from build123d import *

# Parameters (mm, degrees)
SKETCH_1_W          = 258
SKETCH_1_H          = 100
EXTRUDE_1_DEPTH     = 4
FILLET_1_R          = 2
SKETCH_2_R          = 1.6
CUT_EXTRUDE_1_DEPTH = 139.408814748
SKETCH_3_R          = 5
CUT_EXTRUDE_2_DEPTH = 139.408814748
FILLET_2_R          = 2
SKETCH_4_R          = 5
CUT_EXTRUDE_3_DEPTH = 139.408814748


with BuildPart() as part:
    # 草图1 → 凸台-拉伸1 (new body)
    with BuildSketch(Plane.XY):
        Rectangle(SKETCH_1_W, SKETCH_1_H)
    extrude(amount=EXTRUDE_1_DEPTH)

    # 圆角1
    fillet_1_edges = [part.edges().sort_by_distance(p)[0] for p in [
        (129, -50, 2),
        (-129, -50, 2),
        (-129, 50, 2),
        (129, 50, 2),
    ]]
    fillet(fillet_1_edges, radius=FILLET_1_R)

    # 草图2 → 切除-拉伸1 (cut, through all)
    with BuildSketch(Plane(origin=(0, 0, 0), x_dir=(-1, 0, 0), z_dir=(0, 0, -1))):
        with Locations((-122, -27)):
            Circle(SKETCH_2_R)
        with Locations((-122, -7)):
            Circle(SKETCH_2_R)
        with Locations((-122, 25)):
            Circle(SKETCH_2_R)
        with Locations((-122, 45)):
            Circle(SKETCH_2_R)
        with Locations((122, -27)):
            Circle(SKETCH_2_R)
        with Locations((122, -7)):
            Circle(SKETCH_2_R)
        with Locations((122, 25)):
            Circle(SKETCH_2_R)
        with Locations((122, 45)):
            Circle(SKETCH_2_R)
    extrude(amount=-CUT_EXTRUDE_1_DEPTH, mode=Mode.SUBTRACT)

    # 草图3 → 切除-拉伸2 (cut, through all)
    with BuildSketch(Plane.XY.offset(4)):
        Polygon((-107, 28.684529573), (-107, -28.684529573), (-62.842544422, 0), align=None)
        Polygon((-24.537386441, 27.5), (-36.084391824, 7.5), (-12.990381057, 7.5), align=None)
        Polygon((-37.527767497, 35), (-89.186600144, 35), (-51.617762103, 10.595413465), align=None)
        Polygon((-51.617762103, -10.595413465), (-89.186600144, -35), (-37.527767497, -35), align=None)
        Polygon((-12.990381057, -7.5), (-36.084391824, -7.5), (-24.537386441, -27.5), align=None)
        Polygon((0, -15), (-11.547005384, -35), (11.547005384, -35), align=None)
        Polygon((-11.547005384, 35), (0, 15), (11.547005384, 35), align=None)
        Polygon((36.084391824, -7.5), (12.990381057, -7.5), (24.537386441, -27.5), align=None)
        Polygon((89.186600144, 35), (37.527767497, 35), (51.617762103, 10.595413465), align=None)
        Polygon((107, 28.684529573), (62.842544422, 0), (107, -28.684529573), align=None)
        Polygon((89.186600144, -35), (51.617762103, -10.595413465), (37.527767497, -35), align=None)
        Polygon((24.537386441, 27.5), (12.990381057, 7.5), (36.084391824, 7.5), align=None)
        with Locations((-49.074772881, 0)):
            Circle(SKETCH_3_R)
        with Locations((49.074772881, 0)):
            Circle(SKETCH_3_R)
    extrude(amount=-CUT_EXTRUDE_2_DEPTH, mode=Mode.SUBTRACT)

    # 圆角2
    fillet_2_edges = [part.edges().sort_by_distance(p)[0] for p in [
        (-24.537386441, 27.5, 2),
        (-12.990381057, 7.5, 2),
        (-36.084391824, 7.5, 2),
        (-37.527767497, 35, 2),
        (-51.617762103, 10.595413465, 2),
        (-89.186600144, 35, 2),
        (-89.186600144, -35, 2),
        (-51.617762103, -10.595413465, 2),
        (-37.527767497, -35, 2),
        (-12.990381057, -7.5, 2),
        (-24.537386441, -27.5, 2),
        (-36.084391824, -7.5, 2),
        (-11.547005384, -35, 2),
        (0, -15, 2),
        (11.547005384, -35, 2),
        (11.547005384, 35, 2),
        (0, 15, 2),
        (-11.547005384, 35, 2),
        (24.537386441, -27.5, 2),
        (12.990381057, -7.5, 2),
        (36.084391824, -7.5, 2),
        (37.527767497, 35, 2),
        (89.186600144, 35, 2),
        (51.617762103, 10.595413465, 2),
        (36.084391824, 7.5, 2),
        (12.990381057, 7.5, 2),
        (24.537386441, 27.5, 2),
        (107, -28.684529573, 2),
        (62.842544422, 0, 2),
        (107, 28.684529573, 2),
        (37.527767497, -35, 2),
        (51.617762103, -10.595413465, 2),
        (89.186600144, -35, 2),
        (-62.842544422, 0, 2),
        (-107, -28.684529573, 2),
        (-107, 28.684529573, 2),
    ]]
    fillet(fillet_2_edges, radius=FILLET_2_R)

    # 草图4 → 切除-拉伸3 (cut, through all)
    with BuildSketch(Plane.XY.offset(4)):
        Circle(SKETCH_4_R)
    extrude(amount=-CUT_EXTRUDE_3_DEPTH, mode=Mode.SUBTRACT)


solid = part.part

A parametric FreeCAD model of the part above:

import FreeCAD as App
import Part
import Sketcher

V = App.Vector
Q = App.Units.Quantity


def edges_at(feature, points):
    """Names of the edges that pass closest to the given points."""
    edges = feature.Shape.Edges
    near = lambda p: min(range(len(edges)), key=lambda i: edges[i].distToShape(Part.Vertex(*p))[0])
    return sorted({f"Edge{near(p) + 1}" for p in points})

doc = App.newDocument("Part")
body = doc.addObject("PartDesign::Body", "Body")

# Sketch on XY plane
sketch1 = body.newObject("Sketcher::SketchObject", "Sketch")
sketch1.AttachmentSupport = (doc.getObject("XY_Plane"), [""])
sketch1.MapMode = "FlatFace"
sketch1.addGeometry([
    Part.LineSegment(V(-129, 50, 0), V(-129, -50, 0)),
    Part.LineSegment(V(-129, -50, 0), V(129, -50, 0)),
    Part.LineSegment(V(129, -50, 0), V(129, 50, 0)),
    Part.LineSegment(V(129, 50, 0), V(-129, 50, 0)),
], False)
sketch1.addConstraint([
    Sketcher.Constraint("Coincident", 0, 2, 1, 1),
    Sketcher.Constraint("Coincident", 1, 2, 2, 1),
    Sketcher.Constraint("Coincident", 2, 2, 3, 1),
    Sketcher.Constraint("Coincident", 3, 2, 0, 1),
    Sketcher.Constraint("Vertical", 0),
    Sketcher.Constraint("Horizontal", 1),
    Sketcher.Constraint("Vertical", 2),
    Sketcher.Constraint("Horizontal", 3),
    Sketcher.Constraint("Symmetric", 0, 2, 2, 2, -1, 1),
    Sketcher.Constraint("DistanceX", 1, 1, 1, 2, Q("258 mm")),
    Sketcher.Constraint("DistanceY", 0, 2, 0, 1, Q("100 mm")),
])
pad1 = body.newObject("PartDesign::Pad", "Pad")
pad1.Profile = sketch1
pad1.Length = 4
doc.recompute()

fillet = body.newObject("PartDesign::Fillet", "Fillet")
fillet.Base = (pad1, edges_at(pad1, [
    (129, -50, 2),
    (-129, -50, 2),
    (-129, 50, 2),
    (129, 50, 2),
]))
fillet.Radius = 2

# Sketch on XY plane
sketch2 = body.newObject("Sketcher::SketchObject", "Sketch001")
sketch2.AttachmentSupport = (doc.getObject("XY_Plane"), [""])
sketch2.MapMode = "FlatFace"
sketch2.addGeometry([
    Part.Circle(V(122, -27, 0), V(0, 0, 1), 1.6),  # 0
    Part.Circle(V(122, -7, 0), V(0, 0, 1), 1.6),  # 1
    Part.Circle(V(122, 25, 0), V(0, 0, 1), 1.6),  # 2
    Part.Circle(V(122, 45, 0), V(0, 0, 1), 1.6),  # 3
    Part.Circle(V(-122, -27, 0), V(0, 0, 1), 1.6),  # 4
    Part.Circle(V(-122, -7, 0), V(0, 0, 1), 1.6),  # 5
    Part.Circle(V(-122, 25, 0), V(0, 0, 1), 1.6),  # 6
    Part.Circle(V(-122, 45, 0), V(0, 0, 1), 1.6),  # 7
], False)
sketch2.addConstraint([
    Sketcher.Constraint("Equal", 0, 1),
    Sketcher.Constraint("Equal", 1, 2),
    Sketcher.Constraint("Equal", 2, 3),
    Sketcher.Constraint("Equal", 3, 4),
    Sketcher.Constraint("Equal", 4, 5),
    Sketcher.Constraint("Equal", 5, 6),
    Sketcher.Constraint("Equal", 6, 7),
    Sketcher.Constraint("Symmetric", 0, 3, 4, 3, -2),
    Sketcher.Constraint("Symmetric", 1, 3, 5, 3, -2),
    Sketcher.Constraint("Symmetric", 2, 3, 6, 3, -2),
    Sketcher.Constraint("Symmetric", 3, 3, 7, 3, -2),
    Sketcher.Constraint("Vertical", 0, 3, 1, 3),
    Sketcher.Constraint("Vertical", 1, 3, 2, 3),
    Sketcher.Constraint("Vertical", 2, 3, 3, 3),
    Sketcher.Constraint("Diameter", 0, Q("3.2 mm")),
    Sketcher.Constraint("DistanceX", -1, 1, 0, 3, Q("122 mm")),
    Sketcher.Constraint("DistanceY", 0, 3, -1, 1, Q("27 mm")),
    Sketcher.Constraint("DistanceY", 1, 3, -1, 1, Q("7 mm")),
    Sketcher.Constraint("DistanceY", -1, 1, 2, 3, Q("25 mm")),
    Sketcher.Constraint("DistanceY", -1, 1, 3, 3, Q("45 mm")),
])
pocket1 = body.newObject("PartDesign::Pocket", "Pocket")
pocket1.Profile = sketch2
pocket1.Type = "ThroughAll"
pocket1.Reversed = True

# Sketch on XY plane
sketch3 = body.newObject("Sketcher::SketchObject", "Sketch002")
sketch3.AttachmentSupport = (doc.getObject("XY_Plane"), [""])
sketch3.MapMode = "FlatFace"
sketch3.AttachmentOffset = App.Placement(V(0, 0, 4), App.Rotation())
sketch3.addGeometry([
    Part.LineSegment(V(-107, 29, 0), V(-107, -29, 0)),  # 0
    Part.LineSegment(V(-107, -29, 0), V(-63, 0, 0)),  # 1
    Part.LineSegment(V(-63, 0, 0), V(-107, 29, 0)),  # 2
    Part.LineSegment(V(-25, 28, 0), V(-36, 8, 0)),  # 3
    Part.LineSegment(V(-36, 8, 0), V(-13, 8, 0)),  # 4
    Part.LineSegment(V(-13, 8, 0), V(-25, 28, 0)),  # 5
    Part.LineSegment(V(-38, 35, 0), V(-89, 35, 0)),  # 6
    Part.LineSegment(V(-89, 35, 0), V(-52, 11, 0)),  # 7
    Part.LineSegment(V(-52, 11, 0), V(-38, 35, 0)),  # 8
    Part.LineSegment(V(-52, -11, 0), V(-89, -35, 0)),  # 9
    Part.LineSegment(V(-89, -35, 0), V(-38, -35, 0)),  # 10
    Part.LineSegment(V(-38, -35, 0), V(-52, -11, 0)),  # 11
    Part.LineSegment(V(-13, -8, 0), V(-36, -8, 0)),  # 12
    Part.LineSegment(V(-36, -8, 0), V(-25, -28, 0)),  # 13
    Part.LineSegment(V(-25, -28, 0), V(-13, -8, 0)),  # 14
    Part.LineSegment(V(0, -15, 0), V(-12, -35, 0)),  # 15
    Part.LineSegment(V(-12, -35, 0), V(12, -35, 0)),  # 16
    Part.LineSegment(V(12, -35, 0), V(0, -15, 0)),  # 17
    Part.LineSegment(V(-12, 35, 0), V(0, 15, 0)),  # 18
    Part.LineSegment(V(0, 15, 0), V(12, 35, 0)),  # 19
    Part.LineSegment(V(12, 35, 0), V(-12, 35, 0)),  # 20
    Part.LineSegment(V(36, -8, 0), V(13, -8, 0)),  # 21
    Part.LineSegment(V(13, -8, 0), V(25, -28, 0)),  # 22
    Part.LineSegment(V(25, -28, 0), V(36, -8, 0)),  # 23
    Part.LineSegment(V(89, 35, 0), V(38, 35, 0)),  # 24
    Part.LineSegment(V(38, 35, 0), V(52, 11, 0)),  # 25
    Part.LineSegment(V(52, 11, 0), V(89, 35, 0)),  # 26
    Part.LineSegment(V(107, 29, 0), V(63, 0, 0)),  # 27
    Part.LineSegment(V(63, 0, 0), V(107, -29, 0)),  # 28
    Part.LineSegment(V(107, -29, 0), V(107, 29, 0)),  # 29
    Part.LineSegment(V(89, -35, 0), V(52, -11, 0)),  # 30
    Part.LineSegment(V(52, -11, 0), V(38, -35, 0)),  # 31
    Part.LineSegment(V(38, -35, 0), V(89, -35, 0)),  # 32
    Part.LineSegment(V(25, 28, 0), V(13, 8, 0)),  # 33
    Part.LineSegment(V(13, 8, 0), V(36, 8, 0)),  # 34
    Part.LineSegment(V(36, 8, 0), V(25, 28, 0)),  # 35
    Part.Circle(V(-49, 0, 0), V(0, 0, 1), 5),  # 36
    Part.Circle(V(49, 0, 0), V(0, 0, 1), 5),  # 37
], False)
sketch3.addConstraint([
    Sketcher.Constraint("Coincident", 0, 2, 1, 1),
    Sketcher.Constraint("Coincident", 1, 2, 2, 1),
    Sketcher.Constraint("Coincident", 2, 2, 0, 1),
    Sketcher.Constraint("Coincident", 3, 2, 4, 1),
    Sketcher.Constraint("Coincident", 4, 2, 5, 1),
    Sketcher.Constraint("Coincident", 5, 2, 3, 1),
    Sketcher.Constraint("Coincident", 6, 2, 7, 1),
    Sketcher.Constraint("Coincident", 7, 2, 8, 1),
    Sketcher.Constraint("Coincident", 8, 2, 6, 1),
    Sketcher.Constraint("Coincident", 9, 2, 10, 1),
    Sketcher.Constraint("Coincident", 10, 2, 11, 1),
    Sketcher.Constraint("Coincident", 11, 2, 9, 1),
    Sketcher.Constraint("Coincident", 12, 2, 13, 1),
    Sketcher.Constraint("Coincident", 13, 2, 14, 1),
    Sketcher.Constraint("Coincident", 14, 2, 12, 1),
    Sketcher.Constraint("Coincident", 15, 2, 16, 1),
    Sketcher.Constraint("Coincident", 16, 2, 17, 1),
    Sketcher.Constraint("Coincident", 17, 2, 15, 1),
    Sketcher.Constraint("Coincident", 18, 2, 19, 1),
    Sketcher.Constraint("Coincident", 19, 2, 20, 1),
    Sketcher.Constraint("Coincident", 20, 2, 18, 1),
    Sketcher.Constraint("Coincident", 21, 2, 22, 1),
    Sketcher.Constraint("Coincident", 22, 2, 23, 1),
    Sketcher.Constraint("Coincident", 23, 2, 21, 1),
    Sketcher.Constraint("Coincident", 24, 2, 25, 1),
    Sketcher.Constraint("Coincident", 25, 2, 26, 1),
    Sketcher.Constraint("Coincident", 26, 2, 24, 1),
    Sketcher.Constraint("Coincident", 27, 2, 28, 1),
    Sketcher.Constraint("Coincident", 28, 2, 29, 1),
    Sketcher.Constraint("Coincident", 29, 2, 27, 1),
    Sketcher.Constraint("Coincident", 30, 2, 31, 1),
    Sketcher.Constraint("Coincident", 31, 2, 32, 1),
    Sketcher.Constraint("Coincident", 32, 2, 30, 1),
    Sketcher.Constraint("Coincident", 33, 2, 34, 1),
    Sketcher.Constraint("Coincident", 34, 2, 35, 1),
    Sketcher.Constraint("Coincident", 35, 2, 33, 1),
    Sketcher.Constraint("Vertical", 0),
    Sketcher.Constraint("Horizontal", 4),
    Sketcher.Constraint("Horizontal", 6),
    Sketcher.Constraint("Horizontal", 10),
    Sketcher.Constraint("Horizontal", 12),
    Sketcher.Constraint("Horizontal", 16),
    Sketcher.Constraint("Horizontal", 20),
    Sketcher.Constraint("Horizontal", 21),
    Sketcher.Constraint("Horizontal", 24),
    Sketcher.Constraint("Vertical", 29),
    Sketcher.Constraint("Horizontal", 32),
    Sketcher.Constraint("Horizontal", 34),
    Sketcher.Constraint("Equal", 36, 37),
    Sketcher.Constraint("Symmetric", 36, 3, 37, 3, -1, 1),
    Sketcher.Constraint("Symmetric", 17, 2, 18, 2, -1, 1),
    Sketcher.Constraint("Symmetric", 15, 2, 19, 2, -1, 1),
    Sketcher.Constraint("Symmetric", 4, 2, 21, 2, -1, 1),
    Sketcher.Constraint("Symmetric", 5, 2, 22, 2, -1, 1),
    Sketcher.Constraint("Symmetric", 10, 2, 24, 2, -1, 1),
    Sketcher.Constraint("Symmetric", 11, 2, 25, 2, -1, 1),
    Sketcher.Constraint("Symmetric", 1, 2, 27, 2, -1, 1),
    Sketcher.Constraint("Symmetric", 2, 2, 28, 2, -1, 1),
    Sketcher.Constraint("Symmetric", 7, 2, 30, 2, -1, 1),
    Sketcher.Constraint("Symmetric", 8, 2, 31, 2, -1, 1),
    Sketcher.Constraint("Symmetric", 14, 2, 33, 2, -1, 1),
    Sketcher.Constraint("Symmetric", 13, 2, 35, 2, -1, 1),
    Sketcher.Constraint("Symmetric", 14, 2, 21, 2, -2),
    Sketcher.Constraint("Symmetric", 13, 2, 22, 2, -2),
    Sketcher.Constraint("Symmetric", 8, 2, 24, 2, -2),
    Sketcher.Constraint("Symmetric", 7, 2, 25, 2, -2),
    Sketcher.Constraint("PointOnObject", 36, 3, -1),
    Sketcher.Constraint("PointOnObject", 1, 2, -1),
    Sketcher.Constraint("PointOnObject", 17, 2, -2),
    Sketcher.Constraint("Parallel", 2, 7),
    Sketcher.Constraint("Parallel", 3, 8),
    Sketcher.Constraint("Parallel", 1, 9),
    Sketcher.Constraint("Parallel", 5, 11),
    Sketcher.Constraint("Parallel", 11, 13),
    Sketcher.Constraint("Parallel", 14, 15),
    Sketcher.Constraint("Parallel", 13, 17),
    Sketcher.Constraint("Parallel", 17, 18),
    Sketcher.Constraint("Parallel", 19, 23),
    Sketcher.Constraint("Parallel", 9, 26),
    Sketcher.Constraint("Parallel", 26, 27),
    Sketcher.Constraint("Parallel", 28, 30),
    Sketcher.Constraint("Parallel", 25, 35),
    Sketcher.Constraint("Horizontal", 10, 2, 15, 2),
    Sketcher.Constraint("Horizontal", 0, 2, 28, 2),
    Sketcher.Constraint("Equal", 12, 16),
    Sketcher.Constraint("Diameter", 36, Q("10 mm")),
    Sketcher.Constraint("Angle", 3, Q("-120 deg")),
    Sketcher.Constraint("DistanceX", 0, 2, -1, 1, Q("107 mm")),
    Sketcher.Constraint("DistanceY", -1, 1, 6, 2, Q("35 mm")),
    Sketcher.Constraint("DistanceY", 17, 2, -1, 1, Q("15 mm")),
    Sketcher.Constraint("DistanceY", 12, 2, 3, 2, Q("15 mm")),
    Sketcher.Constraint("DistanceY", 0, 2, 0, 1, Q("57.369059 mm")),
    Sketcher.Constraint("DistanceX", 6, 2, -1, 1, Q("89.1866 mm")),
    Sketcher.Constraint("Distance", 7, Q("44.79957 mm")),
    Sketcher.Constraint("Distance", 8, Q("28.179989 mm")),
    Sketcher.Constraint("DistanceX", 3, 2, -1, 1, Q("36.084392 mm")),
    Sketcher.Constraint("DistanceX", 1, 2, 36, 3, Q("13.767772 mm")),
])
pocket2 = body.newObject("PartDesign::Pocket", "Pocket001")
pocket2.Profile = sketch3
pocket2.Type = "ThroughAll"
doc.recompute()

fillet2 = body.newObject("PartDesign::Fillet", "Fillet001")
fillet2.Base = (pocket2, edges_at(pocket2, [
    (-24.537, 27.5, 2),
    (-12.99, 7.5, 2),
    (-36.084, 7.5, 2),
    (-37.528, 35, 2),
    (-51.618, 10.595, 2),
    (-89.187, 35, 2),
    (-89.187, -35, 2),
    (-51.618, -10.595, 2),
    (-37.528, -35, 2),
    (-12.99, -7.5, 2),
    (-24.537, -27.5, 2),
    (-36.084, -7.5, 2),
    (-11.547, -35, 2),
    (0, -15, 2),
    (11.547, -35, 2),
    (11.547, 35, 2),
    (0, 15, 2),
    (-11.547, 35, 2),
    (24.537, -27.5, 2),
    (12.99, -7.5, 2),
    (36.084, -7.5, 2),
    (37.528, 35, 2),
    (89.187, 35, 2),
    (51.618, 10.595, 2),
    (36.084, 7.5, 2),
    (12.99, 7.5, 2),
    (24.537, 27.5, 2),
    (107, -28.685, 2),
    (62.843, 0, 2),
    (107, 28.685, 2),
    (37.528, -35, 2),
    (51.618, -10.595, 2),
    (89.187, -35, 2),
    (-62.843, 0, 2),
    (-107, -28.685, 2),
    (-107, 28.685, 2),
]))
fillet2.Radius = 2

# Sketch on XY plane
sketch4 = body.newObject("Sketcher::SketchObject", "Sketch003")
sketch4.AttachmentSupport = (doc.getObject("XY_Plane"), [""])
sketch4.MapMode = "FlatFace"
sketch4.AttachmentOffset = App.Placement(V(0, 0, 4), App.Rotation())
sketch4.addGeometry(Part.Circle(V(0, 0, 0), V(0, 0, 1), 5), False)
sketch4.addConstraint([
    Sketcher.Constraint("Coincident", 0, 3, -1, 1),
    Sketcher.Constraint("Diameter", 0, Q("10 mm")),
])
pocket3 = body.newObject("PartDesign::Pocket", "Pocket002")
pocket3.Profile = sketch4
pocket3.Type = "ThroughAll"

doc.recompute()
